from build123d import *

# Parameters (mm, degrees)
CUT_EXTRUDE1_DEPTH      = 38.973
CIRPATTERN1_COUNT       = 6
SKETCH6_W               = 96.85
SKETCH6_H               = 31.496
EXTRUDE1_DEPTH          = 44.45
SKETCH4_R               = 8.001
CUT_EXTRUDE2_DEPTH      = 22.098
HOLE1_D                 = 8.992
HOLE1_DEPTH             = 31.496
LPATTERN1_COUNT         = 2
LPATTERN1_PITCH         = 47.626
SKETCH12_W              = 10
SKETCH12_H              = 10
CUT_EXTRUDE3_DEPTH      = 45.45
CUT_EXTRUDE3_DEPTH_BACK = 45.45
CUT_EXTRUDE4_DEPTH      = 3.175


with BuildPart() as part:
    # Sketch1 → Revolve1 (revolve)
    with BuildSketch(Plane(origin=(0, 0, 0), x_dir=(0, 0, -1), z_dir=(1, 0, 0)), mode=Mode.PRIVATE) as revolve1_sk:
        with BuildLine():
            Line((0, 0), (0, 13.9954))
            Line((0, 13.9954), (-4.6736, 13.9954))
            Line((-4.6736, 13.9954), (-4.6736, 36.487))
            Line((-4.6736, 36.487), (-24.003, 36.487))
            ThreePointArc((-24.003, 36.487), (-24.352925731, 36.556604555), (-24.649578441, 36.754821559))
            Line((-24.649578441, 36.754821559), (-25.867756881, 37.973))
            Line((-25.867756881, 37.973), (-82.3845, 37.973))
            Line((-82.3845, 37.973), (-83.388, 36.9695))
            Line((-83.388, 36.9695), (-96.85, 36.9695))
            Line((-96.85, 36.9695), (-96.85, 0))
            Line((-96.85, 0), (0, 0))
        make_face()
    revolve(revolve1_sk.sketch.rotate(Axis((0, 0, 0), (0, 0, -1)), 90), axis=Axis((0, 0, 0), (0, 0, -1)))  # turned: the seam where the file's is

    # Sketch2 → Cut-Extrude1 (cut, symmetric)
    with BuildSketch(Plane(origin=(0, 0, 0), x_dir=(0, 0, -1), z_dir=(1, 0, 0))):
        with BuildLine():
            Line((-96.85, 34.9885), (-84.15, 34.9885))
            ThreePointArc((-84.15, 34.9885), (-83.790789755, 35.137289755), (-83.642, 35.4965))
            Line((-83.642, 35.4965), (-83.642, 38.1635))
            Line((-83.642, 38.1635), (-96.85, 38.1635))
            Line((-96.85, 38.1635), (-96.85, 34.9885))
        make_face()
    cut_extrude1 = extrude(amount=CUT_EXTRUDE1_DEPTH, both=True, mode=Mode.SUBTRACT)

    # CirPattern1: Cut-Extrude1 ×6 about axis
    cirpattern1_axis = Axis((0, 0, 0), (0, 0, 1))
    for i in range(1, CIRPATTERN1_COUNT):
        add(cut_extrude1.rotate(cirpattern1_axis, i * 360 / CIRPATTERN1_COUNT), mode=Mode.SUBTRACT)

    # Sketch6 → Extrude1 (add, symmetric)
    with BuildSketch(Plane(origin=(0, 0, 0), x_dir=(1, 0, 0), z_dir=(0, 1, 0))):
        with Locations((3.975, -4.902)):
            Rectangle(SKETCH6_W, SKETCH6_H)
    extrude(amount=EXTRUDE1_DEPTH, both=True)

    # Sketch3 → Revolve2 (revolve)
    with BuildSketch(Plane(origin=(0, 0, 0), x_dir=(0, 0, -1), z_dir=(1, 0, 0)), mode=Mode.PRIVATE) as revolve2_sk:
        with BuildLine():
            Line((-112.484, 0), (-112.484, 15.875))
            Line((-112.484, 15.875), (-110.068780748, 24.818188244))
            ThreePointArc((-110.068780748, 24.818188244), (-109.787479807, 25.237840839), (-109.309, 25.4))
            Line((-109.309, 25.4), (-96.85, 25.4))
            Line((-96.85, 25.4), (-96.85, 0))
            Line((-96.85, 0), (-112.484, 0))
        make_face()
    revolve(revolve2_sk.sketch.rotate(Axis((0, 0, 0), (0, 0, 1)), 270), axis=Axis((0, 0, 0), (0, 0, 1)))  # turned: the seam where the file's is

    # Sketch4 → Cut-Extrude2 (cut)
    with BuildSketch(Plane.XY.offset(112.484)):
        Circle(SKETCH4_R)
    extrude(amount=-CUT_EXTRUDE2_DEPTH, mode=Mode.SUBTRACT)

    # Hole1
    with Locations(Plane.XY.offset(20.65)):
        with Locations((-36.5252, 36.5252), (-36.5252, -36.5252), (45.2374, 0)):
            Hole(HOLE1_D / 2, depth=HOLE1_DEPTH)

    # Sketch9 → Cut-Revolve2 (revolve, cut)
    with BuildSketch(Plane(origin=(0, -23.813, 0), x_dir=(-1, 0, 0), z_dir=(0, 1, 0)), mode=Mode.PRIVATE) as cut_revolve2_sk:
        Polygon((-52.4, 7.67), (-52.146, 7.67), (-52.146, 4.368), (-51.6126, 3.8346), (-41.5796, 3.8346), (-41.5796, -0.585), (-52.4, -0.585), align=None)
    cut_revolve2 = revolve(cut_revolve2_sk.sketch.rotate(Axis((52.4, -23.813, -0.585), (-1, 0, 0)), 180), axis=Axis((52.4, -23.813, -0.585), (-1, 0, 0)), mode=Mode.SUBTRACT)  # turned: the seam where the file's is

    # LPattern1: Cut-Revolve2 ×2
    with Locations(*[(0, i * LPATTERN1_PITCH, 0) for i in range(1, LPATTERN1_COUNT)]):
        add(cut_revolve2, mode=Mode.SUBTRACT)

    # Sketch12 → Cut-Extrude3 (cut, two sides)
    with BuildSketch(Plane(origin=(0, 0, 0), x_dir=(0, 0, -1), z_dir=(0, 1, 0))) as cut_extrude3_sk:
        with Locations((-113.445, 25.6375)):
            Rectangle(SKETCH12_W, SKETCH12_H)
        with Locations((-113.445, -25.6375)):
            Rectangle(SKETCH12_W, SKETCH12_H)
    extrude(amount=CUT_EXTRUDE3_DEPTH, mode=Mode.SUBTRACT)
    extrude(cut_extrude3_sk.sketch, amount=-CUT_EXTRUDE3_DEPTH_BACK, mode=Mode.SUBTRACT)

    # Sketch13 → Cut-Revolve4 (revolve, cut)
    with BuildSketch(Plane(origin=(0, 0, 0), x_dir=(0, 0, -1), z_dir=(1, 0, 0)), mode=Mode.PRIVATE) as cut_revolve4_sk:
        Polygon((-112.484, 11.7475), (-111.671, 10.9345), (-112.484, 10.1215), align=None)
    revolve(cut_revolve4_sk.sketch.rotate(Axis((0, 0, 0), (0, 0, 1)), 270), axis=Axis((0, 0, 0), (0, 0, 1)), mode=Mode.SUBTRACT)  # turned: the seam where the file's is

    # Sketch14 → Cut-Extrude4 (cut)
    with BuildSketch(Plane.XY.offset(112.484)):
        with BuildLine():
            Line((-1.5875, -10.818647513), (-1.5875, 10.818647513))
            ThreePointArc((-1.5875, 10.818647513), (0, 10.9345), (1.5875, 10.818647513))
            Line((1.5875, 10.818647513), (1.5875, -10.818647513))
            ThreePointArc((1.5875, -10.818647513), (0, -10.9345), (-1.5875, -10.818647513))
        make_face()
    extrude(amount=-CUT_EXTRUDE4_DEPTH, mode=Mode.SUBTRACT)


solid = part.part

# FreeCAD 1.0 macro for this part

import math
import FreeCAD as App
import Part
import Sketcher
from FreeCAD import Vector
Q = App.Units.Quantity

doc = App.newDocument("Part")
params = doc.addObject("Spreadsheet::Sheet", "Params")
for row, (alias, value) in enumerate([
    ("sketch1_radius", "0.036 in"),
    ("sketch1_height", "0.53 in"),
    ("sketch1_width", "0.551 in"),
    ("sketch1_height2", "0.184 in"),
    ("sketch1_height3", "0.761 in"),
    ("revolution_angle", "360 deg"),
    ("sketch2_radius", "0.02 in"),
    ("sketch2_height", "0.5 in"),
    ("sketch2_width", "0.105 in"),
    ("pocket1_length", "77.946 mm"),
    ("sketch3_height", "1.24 in"),
    ("pad1_length", "3.5 in"),
    ("sketch4_width", "1 in"),
    ("sketch4_width2", "0.625 in"),
    ("revolution2_angle", "360 deg"),
    ("sketch5_diameter", "0.63 in"),
    ("pocket2_length", "0.87 in"),
    ("hole_diameter", "8.992 mm"),
    ("hole_depth", "1.24 in"),
    ("sketch7_width", "0.01 in"),
    ("sketch7_height", "0.13 in"),
    ("sketch7_width2", "0.426 in"),
    ("sketch7_width3", "0.395 in"),
    ("sketch7_height2", "0.325 in"),
    ("groove_angle", "360 deg"),
    ("linearpattern_pitch", "47.626 mm"),
    ("groove2_angle", "360 deg"),
    ("pocket4_length", "0.125 in"),
], start=1):
    params.set(f"A{row}", alias)
    params.set(f"B{row}", "=" + value)
    params.setAlias(f"B{row}", alias)

body = doc.addObject("PartDesign::Body", "Body")

# Sketch on YZ plane
sketch1 = body.newObject("Sketcher::SketchObject", "Sketch")
sketch1.AttachmentSupport = (doc.getObject("YZ_Plane"), [""])
sketch1.MapMode = "FlatFace"
sketch1.addGeometry(Part.LineSegment(Vector(0, 0, 0), Vector(13.9954, 0, 0)), False)
sketch1.addGeometry(Part.LineSegment(Vector(13.9954, 0, 0), Vector(13.9954, 4.6736, 0)), False)
sketch1.addGeometry(Part.LineSegment(Vector(13.9954, 4.6736, 0), Vector(36.487, 4.6736, 0)), False)
sketch1.addGeometry(Part.LineSegment(Vector(36.487, 4.6736, 0), Vector(36.487, 24.003, 0)), False)
sketch1.addGeometry(Part.ArcOfCircle(Part.Circle(Vector(37.4014, 24.003, 0), Vector(0, 0, 1), 0.9144), math.radians(135), math.radians(180)), False)
sketch1.addGeometry(Part.LineSegment(Vector(36.754822, 24.649578, 0), Vector(37.973, 25.867757, 0)), False)
sketch1.addGeometry(Part.LineSegment(Vector(37.973, 25.867757, 0), Vector(37.973, 82.3845, 0)), False)
sketch1.addGeometry(Part.LineSegment(Vector(37.973, 82.3845, 0), Vector(36.9695, 83.388, 0)), False)
sketch1.addGeometry(Part.LineSegment(Vector(36.9695, 83.388, 0), Vector(36.9695, 96.85, 0)), False)
sketch1.addGeometry(Part.LineSegment(Vector(36.9695, 96.85, 0), Vector(0, 96.85, 0)), False)
sketch1.addGeometry(Part.LineSegment(Vector(0, 96.85, 0), Vector(0, 0, 0)), False)
sketch1.addConstraint(Sketcher.Constraint("Coincident", 0, 2, 1, 1))
sketch1.addConstraint(Sketcher.Constraint("Coincident", 1, 2, 2, 1))
sketch1.addConstraint(Sketcher.Constraint("Coincident", 2, 2, 3, 1))
sketch1.addConstraint(Sketcher.Constraint("Tangent", 3, 2, 4, 2))
sketch1.addConstraint(Sketcher.Constraint("Tangent", 4, 1, 5, 1))
sketch1.addConstraint(Sketcher.Constraint("Coincident", 5, 2, 6, 1))
sketch1.addConstraint(Sketcher.Constraint("Coincident", 6, 2, 7, 1))
sketch1.addConstraint(Sketcher.Constraint("Coincident", 7, 2, 8, 1))
sketch1.addConstraint(Sketcher.Constraint("Coincident", 8, 2, 9, 1))
sketch1.addConstraint(Sketcher.Constraint("Coincident", 9, 2, 10, 1))
sketch1.addConstraint(Sketcher.Constraint("Coincident", 10, 2, 0, 1))
sketch1.addConstraint(Sketcher.Constraint("Horizontal", 0))
sketch1.addConstraint(Sketcher.Constraint("Vertical", 1))
sketch1.addConstraint(Sketcher.Constraint("Horizontal", 2))
sketch1.addConstraint(Sketcher.Constraint("Vertical", 3))
sketch1.addConstraint(Sketcher.Constraint("Vertical", 6))
sketch1.addConstraint(Sketcher.Constraint("Vertical", 8))
sketch1.addConstraint(Sketcher.Constraint("Horizontal", 9))
sketch1.addConstraint(Sketcher.Constraint("Vertical", 10))
sketch1.addConstraint(Sketcher.Constraint("Coincident", 10, 2, -1, 1))
sketch1.addConstraint(Sketcher.Constraint("Perpendicular", 5, 7))
sketch1.addConstraint(Sketcher.Constraint("Angle", 5, Q("45 deg")))
sketch1.addConstraint(Sketcher.Constraint("Radius", 4, Q("0.036 in")))
sketch1.addConstraint(Sketcher.Constraint("DistanceY", 8, 1, 8, 2, Q("0.53 in")))
sketch1.addConstraint(Sketcher.Constraint("DistanceX", 0, 1, 0, 2, Q("0.551 in")))
sketch1.addConstraint(Sketcher.Constraint("DistanceY", 1, 1, 1, 2, Q("0.184 in")))
sketch1.addConstraint(Sketcher.Constraint("DistanceY", 3, 1, 3, 2, Q("0.761 in")))
sketch1.addConstraint(Sketcher.Constraint("DistanceX", -1, 1, 5, 2, Q("1.495 in")))
sketch1.addConstraint(Sketcher.Constraint("DistanceX", 2, 1, 2, 2, 22.4916))
sketch1.addConstraint(Sketcher.Constraint("DistanceX", 9, 2, 9, 1, 36.9695))
sketch1.addConstraint(Sketcher.Constraint("DistanceY", 10, 2, 10, 1, 96.85))
sketch1.setExpression("Constraints[22]", "Params.sketch1_radius")
sketch1.setExpression("Constraints[23]", "Params.sketch1_height")
sketch1.setExpression("Constraints[24]", "Params.sketch1_width")
sketch1.setExpression("Constraints[25]", "Params.sketch1_height2")
sketch1.setExpression("Constraints[26]", "Params.sketch1_height3")
revolution = body.newObject("PartDesign::Revolution", "Revolution")
revolution.Profile = sketch1
revolution.ReferenceAxis = (sketch1, ["V_Axis"])
revolution.setExpression("Angle", "Params.revolution_angle")

# Sketch on YZ plane
sketch2 = body.newObject("Sketcher::SketchObject", "Sketch001")
sketch2.AttachmentSupport = (doc.getObject("YZ_Plane"), [""])
sketch2.MapMode = "FlatFace"
sketch2.addGeometry(Part.LineSegment(Vector(34.9885, 96.85, 0), Vector(34.9885, 84.15, 0)), False)
sketch2.addGeometry(Part.ArcOfCircle(Part.Circle(Vector(35.4965, 84.15, 0), Vector(0, 0, 1), 0.508), math.radians(180), math.radians(270)), False)
sketch2.addGeometry(Part.LineSegment(Vector(35.4965, 83.642, 0), Vector(38.1635, 83.642, 0)), False)
sketch2.addGeometry(Part.LineSegment(Vector(38.1635, 83.642, 0), Vector(38.1635, 96.85, 0)), False)
sketch2.addGeometry(Part.LineSegment(Vector(38.1635, 96.85, 0), Vector(34.9885, 96.85, 0)), False)
sketch2.addConstraint(Sketcher.Constraint("Tangent", 0, 2, 1, 1))
sketch2.addConstraint(Sketcher.Constraint("Tangent", 1, 2, 2, 1))
sketch2.addConstraint(Sketcher.Constraint("Coincident", 2, 2, 3, 1))
sketch2.addConstraint(Sketcher.Constraint("Coincident", 3, 2, 4, 1))
sketch2.addConstraint(Sketcher.Constraint("Coincident", 4, 2, 0, 1))
sketch2.addConstraint(Sketcher.Constraint("Vertical", 0))
sketch2.addConstraint(Sketcher.Constraint("Horizontal", 2))
sketch2.addConstraint(Sketcher.Constraint("Vertical", 3))
sketch2.addConstraint(Sketcher.Constraint("Horizontal", 4))
sketch2.addConstraint(Sketcher.Constraint("Radius", 1, Q("0.02 in")))
sketch2.addConstraint(Sketcher.Constraint("DistanceY", 0, 2, 0, 1, Q("0.5 in")))
sketch2.addConstraint(Sketcher.Constraint("DistanceX", 2, 1, 2, 2, Q("0.105 in")))
sketch2.addConstraint(Sketcher.Constraint("DistanceX", -1, 1, 1, 3, Q("1.3975 in")))
sketch2.addConstraint(Sketcher.Constraint("DistanceY", -1, 1, 1, 3, 84.15))
sketch2.setExpression("Constraints[9]", "Params.sketch2_radius")
sketch2.setExpression("Constraints[10]", "Params.sketch2_height")
sketch2.setExpression("Constraints[11]", "Params.sketch2_width")
pocket1 = body.newObject("PartDesign::Pocket", "Pocket")
pocket1.Profile = sketch2
pocket1.setExpression("Length", "Params.pocket1_length")
pocket1.Midplane = True
doc.recompute()

polarpattern = body.newObject("PartDesign::PolarPattern", "PolarPattern")
polarpattern.Originals = [pocket1]
polarpattern.Axis = (doc.getObject("Z_Axis"), [""])
polarpattern.Angle = 360
polarpattern.Occurrences = 6
body.Tip = polarpattern

# Sketch on XZ plane
sketch3 = body.newObject("Sketcher::SketchObject", "Sketch002")
sketch3.AttachmentSupport = (doc.getObject("XZ_Plane"), [""])
sketch3.MapMode = "FlatFace"
sketch3.addGeometry(Part.LineSegment(Vector(-44.45, -10.846, 0), Vector(-44.45, 20.65, 0)), False)
sketch3.addGeometry(Part.LineSegment(Vector(-44.45, 20.65, 0), Vector(52.4, 20.65, 0)), False)
sketch3.addGeometry(Part.LineSegment(Vector(52.4, 20.65, 0), Vector(52.4, -10.846, 0)), False)
sketch3.addGeometry(Part.LineSegment(Vector(52.4, -10.846, 0), Vector(-44.45, -10.846, 0)), False)
sketch3.addConstraint(Sketcher.Constraint("Coincident", 0, 2, 1, 1))
sketch3.addConstraint(Sketcher.Constraint("Coincident", 1, 2, 2, 1))
sketch3.addConstraint(Sketcher.Constraint("Coincident", 2, 2, 3, 1))
sketch3.addConstraint(Sketcher.Constraint("Coincident", 3, 2, 0, 1))
sketch3.addConstraint(Sketcher.Constraint("Vertical", 0))
sketch3.addConstraint(Sketcher.Constraint("Horizontal", 1))
sketch3.addConstraint(Sketcher.Constraint("Vertical", 2))
sketch3.addConstraint(Sketcher.Constraint("Horizontal", 3))
sketch3.addConstraint(Sketcher.Constraint("DistanceY", 0, 1, 0, 2, Q("1.24 in")))
sketch3.addConstraint(Sketcher.Constraint("DistanceX", 0, 2, -1, 1, Q("1.75 in")))
sketch3.addConstraint(Sketcher.Constraint("DistanceX", 1, 1, 1, 2, 96.85))
sketch3.addConstraint(Sketcher.Constraint("DistanceY", -1, 1, 0, 2, 20.65))
sketch3.setExpression("Constraints[8]", "Params.sketch3_height")
pad1 = body.newObject("PartDesign::Pad", "Pad")
pad1.Profile = sketch3
pad1.setExpression("Length", "Params.pad1_length")
pad1.Midplane = True

# Sketch on YZ plane
sketch4 = body.newObject("Sketcher::SketchObject", "Sketch003")
sketch4.AttachmentSupport = (doc.getObject("YZ_Plane"), [""])
sketch4.MapMode = "FlatFace"
sketch4.addGeometry(Part.LineSegment(Vector(15.875, 112.484, 0), Vector(0, 112.484, 0)), False)
sketch4.addGeometry(Part.LineSegment(Vector(0, 112.484, 0), Vector(0, 96.85, 0)), False)
sketch4.addGeometry(Part.LineSegment(Vector(0, 96.85, 0), Vector(25.4, 96.85, 0)), False)
sketch4.addGeometry(Part.LineSegment(Vector(25.4, 96.85, 0), Vector(25.4, 109.309, 0)), False)
sketch4.addGeometry(Part.ArcOfCircle(Part.Circle(Vector(24.613, 109.309, 0), Vector(0, 0, 1), 0.787), math.radians(0), math.radians(74.88709)), False)
sketch4.addGeometry(Part.LineSegment(Vector(24.818188, 110.068781, 0), Vector(15.875, 112.484, 0)), False)
sketch4.addConstraint(Sketcher.Constraint("Coincident", 0, 2, 1, 1))
sketch4.addConstraint(Sketcher.Constraint("Coincident", 1, 2, 2, 1))
sketch4.addConstraint(Sketcher.Constraint("Coincident", 2, 2, 3, 1))
sketch4.addConstraint(Sketcher.Constraint("Tangent", 3, 2, 4, 1))
sketch4.addConstraint(Sketcher.Constraint("Tangent", 4, 2, 5, 1))
sketch4.addConstraint(Sketcher.Constraint("Coincident", 5, 2, 0, 1))
sketch4.addConstraint(Sketcher.Constraint("Horizontal", 0))
sketch4.addConstraint(Sketcher.Constraint("Vertical", 1))
sketch4.addConstraint(Sketcher.Constraint("Horizontal", 2))
sketch4.addConstraint(Sketcher.Constraint("Vertical", 3))
sketch4.addConstraint(Sketcher.Constraint("PointOnObject", 0, 2, -2))
sketch4.addConstraint(Sketcher.Constraint("DistanceX", 2, 1, 2, 2, Q("1 in")))
sketch4.addConstraint(Sketcher.Constraint("DistanceX", 0, 2, 0, 1, Q("0.625 in")))
sketch4.addConstraint(Sketcher.Constraint("Radius", 4, 0.787))
sketch4.addConstraint(Sketcher.Constraint("DistanceY", 4, 3, 0, 2, Q("0.125 in")))
sketch4.addConstraint(Sketcher.Constraint("DistanceY", 1, 2, 1, 1, 15.634))
sketch4.addConstraint(Sketcher.Constraint("DistanceY", -1, 1, 4, 3, 109.309))
sketch4.setExpression("Constraints[11]", "Params.sketch4_width")
sketch4.setExpression("Constraints[12]", "Params.sketch4_width2")
revolution2 = body.newObject("PartDesign::Revolution", "Revolution001")
revolution2.Profile = sketch4
revolution2.ReferenceAxis = (sketch4, ["V_Axis"])
revolution2.setExpression("Angle", "Params.revolution2_angle")

# Sketch on XY plane
sketch5 = body.newObject("Sketcher::SketchObject", "Sketch004")
sketch5.AttachmentSupport = (doc.getObject("XY_Plane"), [""])
sketch5.MapMode = "FlatFace"
sketch5.AttachmentOffset = App.Placement(Vector(0, 0, 112.484), App.Rotation())
sketch5.addGeometry(Part.Circle(Vector(0, 0, 0), Vector(0, 0, 1), 8.001), False)
sketch5.addConstraint(Sketcher.Constraint("Coincident", 0, 3, -1, 1))
sketch5.addConstraint(Sketcher.Constraint("Diameter", 0, Q("0.63 in")))
sketch5.setExpression("Constraints[1]", "Params.sketch5_diameter")
pocket2 = body.newObject("PartDesign::Pocket", "Pocket001")
pocket2.Profile = sketch5
pocket2.setExpression("Length", "Params.pocket2_length")

# Sketch on XY plane
sketch6 = body.newObject("Sketcher::SketchObject", "Sketch005")
sketch6.AttachmentSupport = (doc.getObject("XY_Plane"), [""])
sketch6.MapMode = "FlatFace"
sketch6.AttachmentOffset = App.Placement(Vector(0, 0, 20.65), App.Rotation())
sketch6.addGeometry(Part.Circle(Vector(-36.5252, 36.5252, 0), Vector(0, 0, 1), 4.496), False)
sketch6.addGeometry(Part.Circle(Vector(-36.5252, -36.5252, 0), Vector(0, 0, 1), 4.496), False)
sketch6.addGeometry(Part.Circle(Vector(45.2374, 0, 0), Vector(0, 0, 1), 4.496), False)
sketch6.addConstraint(Sketcher.Constraint("Equal", 0, 1))
sketch6.addConstraint(Sketcher.Constraint("Equal", 1, 2))
sketch6.addConstraint(Sketcher.Constraint("Symmetric", 0, 3, 1, 3, -1))
sketch6.addConstraint(Sketcher.Constraint("PointOnObject", 2, 3, -1))
sketch6.addConstraint(Sketcher.Constraint("Diameter", 0, 8.992))
sketch6.addConstraint(Sketcher.Constraint("DistanceX", 0, 3, -1, 1, Q("1.438 in")))
sketch6.addConstraint(Sketcher.Constraint("DistanceY", -1, 1, 0, 3, Q("1.438 in")))
sketch6.addConstraint(Sketcher.Constraint("DistanceX", -1, 1, 2, 3, Q("1.781 in")))
doc.recompute()
hole = body.newObject("PartDesign::Hole", "Hole")
hole.Profile = sketch6
hole.ThreadType = "None"
hole.setExpression("Diameter", "Params.hole_diameter")
hole.DepthType = "Dimension"
hole.setExpression("Depth", "Params.hole_depth")
hole.DrillPoint = "Flat"

# Sketch on XZ plane
sketch7 = body.newObject("Sketcher::SketchObject", "Sketch006")
sketch7.AttachmentSupport = (doc.getObject("XZ_Plane"), [""])
sketch7.MapMode = "FlatFace"
sketch7.AttachmentOffset = App.Placement(Vector(0, 0, 23.813), App.Rotation())
sketch7.addGeometry(Part.LineSegment(Vector(52.146, 7.67, 0), Vector(52.4, 7.67, 0)), False)
sketch7.addGeometry(Part.LineSegment(Vector(52.4, 7.67, 0), Vector(52.4, -0.585, 0)), False)
sketch7.addGeometry(Part.LineSegment(Vector(52.4, -0.585, 0), Vector(41.5796, -0.585, 0)), False)
sketch7.addGeometry(Part.LineSegment(Vector(41.5796, -0.585, 0), Vector(41.5796, 3.8346, 0)), False)
sketch7.addGeometry(Part.LineSegment(Vector(41.5796, 3.8346, 0), Vector(51.6126, 3.8346, 0)), False)
sketch7.addGeometry(Part.LineSegment(Vector(51.6126, 3.8346, 0), Vector(52.146, 4.368, 0)), False)
sketch7.addGeometry(Part.LineSegment(Vector(52.146, 4.368, 0), Vector(52.146, 7.67, 0)), False)
sketch7.addGeometry(Part.LineSegment(Vector(52.4, -0.585, 0), Vector(41.5796, -0.585, 0)), True)  # axis
sketch7.addConstraint(Sketcher.Constraint("Coincident", 0, 2, 1, 1))
sketch7.addConstraint(Sketcher.Constraint("Coincident", 1, 2, 2, 1))
sketch7.addConstraint(Sketcher.Constraint("Coincident", 2, 2, 3, 1))
sketch7.addConstraint(Sketcher.Constraint("Coincident", 3, 2, 4, 1))
sketch7.addConstraint(Sketcher.Constraint("Coincident", 4, 2, 5, 1))
sketch7.addConstraint(Sketcher.Constraint("Coincident", 5, 2, 6, 1))
sketch7.addConstraint(Sketcher.Constraint("Coincident", 6, 2, 0, 1))
sketch7.addConstraint(Sketcher.Constraint("Horizontal", 0))
sketch7.addConstraint(Sketcher.Constraint("Vertical", 1))
sketch7.addConstraint(Sketcher.Constraint("Horizontal", 2))
sketch7.addConstraint(Sketcher.Constraint("Vertical", 3))
sketch7.addConstraint(Sketcher.Constraint("Horizontal", 4))
sketch7.addConstraint(Sketcher.Constraint("Vertical", 6))
sketch7.addConstraint(Sketcher.Constraint("Horizontal", 7))
sketch7.addConstraint(Sketcher.Constraint("Coincident", 7, 1, 1, 2))
sketch7.addConstraint(Sketcher.Constraint("Vertical", 3, 2, 7, 2))
sketch7.addConstraint(Sketcher.Constraint("Angle", 5, Q("45 deg")))
sketch7.addConstraint(Sketcher.Constraint("DistanceX", 0, 1, 0, 2, Q("0.01 in")))
sketch7.addConstraint(Sketcher.Constraint("DistanceY", 6, 1, 6, 2, Q("0.13 in")))
sketch7.addConstraint(Sketcher.Constraint("DistanceX", 2, 2, 2, 1, Q("0.426 in")))
sketch7.addConstraint(Sketcher.Constraint("DistanceX", 4, 1, 4, 2, Q("0.395 in")))
sketch7.addConstraint(Sketcher.Constraint("DistanceY", 1, 2, 1, 1, Q("0.325 in")))
sketch7.addConstraint(Sketcher.Constraint("DistanceX", -1, 1, 0, 2, 52.4))
sketch7.addConstraint(Sketcher.Constraint("DistanceY", -1, 1, 0, 2, 7.67))
sketch7.setExpression("Constraints[17]", "Params.sketch7_width")
sketch7.setExpression("Constraints[18]", "Params.sketch7_height")
sketch7.setExpression("Constraints[19]", "Params.sketch7_width2")
sketch7.setExpression("Constraints[20]", "Params.sketch7_width3")
sketch7.setExpression("Constraints[21]", "Params.sketch7_height2")
groove = body.newObject("PartDesign::Groove", "Groove")
groove.Profile = sketch7
groove.ReferenceAxis = (sketch7, ["Axis0"])
groove.setExpression("Angle", "Params.groove_angle")
doc.recompute()

linearpattern = body.newObject("PartDesign::LinearPattern", "LinearPattern")
linearpattern.Originals = [groove]
linearpattern.Direction = (doc.getObject("Y_Axis"), [""])
linearpattern.Mode = "offset"
linearpattern.setExpression("Offset", "Params.linearpattern_pitch")
linearpattern.Occurrences = 2
body.Tip = linearpattern

# Sketch on XZ plane
sketch8 = body.newObject("Sketcher::SketchObject", "Sketch007")
sketch8.AttachmentSupport = (doc.getObject("XZ_Plane"), [""])
sketch8.MapMode = "FlatFace"
sketch8.addGeometry(Part.LineSegment(Vector(-30.6375, 118.445, 0), Vector(-20.6375, 118.445, 0)), False)
sketch8.addGeometry(Part.LineSegment(Vector(-20.6375, 118.445, 0), Vector(-20.6375, 108.445, 0)), False)
sketch8.addGeometry(Part.LineSegment(Vector(-20.6375, 108.445, 0), Vector(-30.6375, 108.445, 0)), False)
sketch8.addGeometry(Part.LineSegment(Vector(-30.6375, 108.445, 0), Vector(-30.6375, 118.445, 0)), False)
sketch8.addGeometry(Part.LineSegment(Vector(20.6375, 118.445, 0), Vector(30.6375, 118.445, 0)), False)
sketch8.addGeometry(Part.LineSegment(Vector(30.6375, 118.445, 0), Vector(30.6375, 108.445, 0)), False)
sketch8.addGeometry(Part.LineSegment(Vector(30.6375, 108.445, 0), Vector(20.6375, 108.445, 0)), False)
sketch8.addGeometry(Part.LineSegment(Vector(20.6375, 108.445, 0), Vector(20.6375, 118.445, 0)), False)
sketch8.addConstraint(Sketcher.Constraint("Coincident", 0, 2, 1, 1))
sketch8.addConstraint(Sketcher.Constraint("Coincident", 1, 2, 2, 1))
sketch8.addConstraint(Sketcher.Constraint("Coincident", 2, 2, 3, 1))
sketch8.addConstraint(Sketcher.Constraint("Coincident", 3, 2, 0, 1))
sketch8.addConstraint(Sketcher.Constraint("Coincident", 4, 2, 5, 1))
sketch8.addConstraint(Sketcher.Constraint("Coincident", 5, 2, 6, 1))
sketch8.addConstraint(Sketcher.Constraint("Coincident", 6, 2, 7, 1))
sketch8.addConstraint(Sketcher.Constraint("Coincident", 7, 2, 4, 1))
sketch8.addConstraint(Sketcher.Constraint("Horizontal", 0))
sketch8.addConstraint(Sketcher.Constraint("Vertical", 1))
sketch8.addConstraint(Sketcher.Constraint("Horizontal", 2))
sketch8.addConstraint(Sketcher.Constraint("Vertical", 3))
sketch8.addConstraint(Sketcher.Constraint("Horizontal", 4))
sketch8.addConstraint(Sketcher.Constraint("Vertical", 5))
sketch8.addConstraint(Sketcher.Constraint("Horizontal", 6))
sketch8.addConstraint(Sketcher.Constraint("Vertical", 7))
sketch8.addConstraint(Sketcher.Constraint("Symmetric", 3, 2, 4, 2, -2))
sketch8.addConstraint(Sketcher.Constraint("Symmetric", 1, 2, 6, 2, -2))
sketch8.addConstraint(Sketcher.Constraint("Equal", 6, 1))
sketch8.addConstraint(Sketcher.Constraint("DistanceX", 0, 2, -1, 1, Q("0.8125 in")))
sketch8.addConstraint(Sketcher.Constraint("DistanceX", 0, 1, 0, 2, 10.0))
sketch8.addConstraint(Sketcher.Constraint("DistanceY", -1, 1, 0, 2, 118.445))
pocket3 = body.newObject("PartDesign::Pocket", "Pocket002")
pocket3.Profile = sketch8
pocket3.Type = "ThroughAll"
pocket3.Midplane = True

# Sketch on YZ plane
sketch9 = body.newObject("Sketcher::SketchObject", "Sketch008")
sketch9.AttachmentSupport = (doc.getObject("YZ_Plane"), [""])
sketch9.MapMode = "FlatFace"
sketch9.addGeometry(Part.LineSegment(Vector(10.9345, 111.671, 0), Vector(11.7475, 112.484, 0)), False)
sketch9.addGeometry(Part.LineSegment(Vector(11.7475, 112.484, 0), Vector(10.1215, 112.484, 0)), False)
sketch9.addGeometry(Part.LineSegment(Vector(10.1215, 112.484, 0), Vector(10.9345, 111.671, 0)), False)
sketch9.addConstraint(Sketcher.Constraint("Coincident", 0, 2, 1, 1))
sketch9.addConstraint(Sketcher.Constraint("Coincident", 1, 2, 2, 1))
sketch9.addConstraint(Sketcher.Constraint("Coincident", 2, 2, 0, 1))
sketch9.addConstraint(Sketcher.Constraint("Horizontal", 1))
sketch9.addConstraint(Sketcher.Constraint("Perpendicular", 0, 2))
sketch9.addConstraint(Sketcher.Constraint("Equal", 0, 2))
sketch9.addConstraint(Sketcher.Constraint("DistanceX", 1, 2, 1, 1, 1.626))
sketch9.addConstraint(Sketcher.Constraint("DistanceX", -1, 1, 0, 2, Q("0.4625 in")))
sketch9.addConstraint(Sketcher.Constraint("DistanceY", -1, 1, 0, 2, 112.484))
groove2 = body.newObject("PartDesign::Groove", "Groove001")
groove2.Profile = sketch9
groove2.ReferenceAxis = (sketch9, ["V_Axis"])
groove2.setExpression("Angle", "Params.groove2_angle")

# Sketch on XY plane
sketch10 = body.newObject("Sketcher::SketchObject", "Sketch009")
sketch10.AttachmentSupport = (doc.getObject("XY_Plane"), [""])
sketch10.MapMode = "FlatFace"
sketch10.AttachmentOffset = App.Placement(Vector(0, 0, 112.484), App.Rotation())
sketch10.addGeometry(Part.LineSegment(Vector(-1.5875, 10.818648, 0), Vector(-1.5875, -10.818648, 0)), False)
sketch10.addGeometry(Part.ArcOfCircle(Part.Circle(Vector(0, 0, 0), Vector(0, 0, 1), 10.9345), math.radians(-98.347858), math.radians(-81.652142)), False)
sketch10.addGeometry(Part.LineSegment(Vector(1.5875, -10.818648, 0), Vector(1.5875, 10.818648, 0)), False)
sketch10.addGeometry(Part.ArcOfCircle(Part.Circle(Vector(0, 0, 0), Vector(0, 0, 1), 10.9345), math.radians(81.652142), math.radians(98.347858)), False)
sketch10.addConstraint(Sketcher.Constraint("Coincident", 0, 2, 1, 1))
sketch10.addConstraint(Sketcher.Constraint("Coincident", 1, 2, 2, 1))
sketch10.addConstraint(Sketcher.Constraint("Coincident", 2, 2, 3, 1))
sketch10.addConstraint(Sketcher.Constraint("Coincident", 3, 2, 0, 1))
sketch10.addConstraint(Sketcher.Constraint("Vertical", 0))
sketch10.addConstraint(Sketcher.Constraint("Vertical", 2))
sketch10.addConstraint(Sketcher.Constraint("Coincident", 1, 3, -1, 1))
sketch10.addConstraint(Sketcher.Constraint("Coincident", 3, 3, -1, 1))
sketch10.addConstraint(Sketcher.Constraint("Equal", 1, 3))
sketch10.addConstraint(Sketcher.Constraint("Horizontal", 0, 2, 1, 2))
sketch10.addConstraint(Sketcher.Constraint("Radius", 1, 10.9345))
sketch10.addConstraint(Sketcher.Constraint("DistanceX", 0, 2, -1, 1, Q("0.0625 in")))
pocket4 = body.newObject("PartDesign::Pocket", "Pocket003")
pocket4.Profile = sketch10
pocket4.setExpression("Length", "Params.pocket4_length")

doc.recompute()
